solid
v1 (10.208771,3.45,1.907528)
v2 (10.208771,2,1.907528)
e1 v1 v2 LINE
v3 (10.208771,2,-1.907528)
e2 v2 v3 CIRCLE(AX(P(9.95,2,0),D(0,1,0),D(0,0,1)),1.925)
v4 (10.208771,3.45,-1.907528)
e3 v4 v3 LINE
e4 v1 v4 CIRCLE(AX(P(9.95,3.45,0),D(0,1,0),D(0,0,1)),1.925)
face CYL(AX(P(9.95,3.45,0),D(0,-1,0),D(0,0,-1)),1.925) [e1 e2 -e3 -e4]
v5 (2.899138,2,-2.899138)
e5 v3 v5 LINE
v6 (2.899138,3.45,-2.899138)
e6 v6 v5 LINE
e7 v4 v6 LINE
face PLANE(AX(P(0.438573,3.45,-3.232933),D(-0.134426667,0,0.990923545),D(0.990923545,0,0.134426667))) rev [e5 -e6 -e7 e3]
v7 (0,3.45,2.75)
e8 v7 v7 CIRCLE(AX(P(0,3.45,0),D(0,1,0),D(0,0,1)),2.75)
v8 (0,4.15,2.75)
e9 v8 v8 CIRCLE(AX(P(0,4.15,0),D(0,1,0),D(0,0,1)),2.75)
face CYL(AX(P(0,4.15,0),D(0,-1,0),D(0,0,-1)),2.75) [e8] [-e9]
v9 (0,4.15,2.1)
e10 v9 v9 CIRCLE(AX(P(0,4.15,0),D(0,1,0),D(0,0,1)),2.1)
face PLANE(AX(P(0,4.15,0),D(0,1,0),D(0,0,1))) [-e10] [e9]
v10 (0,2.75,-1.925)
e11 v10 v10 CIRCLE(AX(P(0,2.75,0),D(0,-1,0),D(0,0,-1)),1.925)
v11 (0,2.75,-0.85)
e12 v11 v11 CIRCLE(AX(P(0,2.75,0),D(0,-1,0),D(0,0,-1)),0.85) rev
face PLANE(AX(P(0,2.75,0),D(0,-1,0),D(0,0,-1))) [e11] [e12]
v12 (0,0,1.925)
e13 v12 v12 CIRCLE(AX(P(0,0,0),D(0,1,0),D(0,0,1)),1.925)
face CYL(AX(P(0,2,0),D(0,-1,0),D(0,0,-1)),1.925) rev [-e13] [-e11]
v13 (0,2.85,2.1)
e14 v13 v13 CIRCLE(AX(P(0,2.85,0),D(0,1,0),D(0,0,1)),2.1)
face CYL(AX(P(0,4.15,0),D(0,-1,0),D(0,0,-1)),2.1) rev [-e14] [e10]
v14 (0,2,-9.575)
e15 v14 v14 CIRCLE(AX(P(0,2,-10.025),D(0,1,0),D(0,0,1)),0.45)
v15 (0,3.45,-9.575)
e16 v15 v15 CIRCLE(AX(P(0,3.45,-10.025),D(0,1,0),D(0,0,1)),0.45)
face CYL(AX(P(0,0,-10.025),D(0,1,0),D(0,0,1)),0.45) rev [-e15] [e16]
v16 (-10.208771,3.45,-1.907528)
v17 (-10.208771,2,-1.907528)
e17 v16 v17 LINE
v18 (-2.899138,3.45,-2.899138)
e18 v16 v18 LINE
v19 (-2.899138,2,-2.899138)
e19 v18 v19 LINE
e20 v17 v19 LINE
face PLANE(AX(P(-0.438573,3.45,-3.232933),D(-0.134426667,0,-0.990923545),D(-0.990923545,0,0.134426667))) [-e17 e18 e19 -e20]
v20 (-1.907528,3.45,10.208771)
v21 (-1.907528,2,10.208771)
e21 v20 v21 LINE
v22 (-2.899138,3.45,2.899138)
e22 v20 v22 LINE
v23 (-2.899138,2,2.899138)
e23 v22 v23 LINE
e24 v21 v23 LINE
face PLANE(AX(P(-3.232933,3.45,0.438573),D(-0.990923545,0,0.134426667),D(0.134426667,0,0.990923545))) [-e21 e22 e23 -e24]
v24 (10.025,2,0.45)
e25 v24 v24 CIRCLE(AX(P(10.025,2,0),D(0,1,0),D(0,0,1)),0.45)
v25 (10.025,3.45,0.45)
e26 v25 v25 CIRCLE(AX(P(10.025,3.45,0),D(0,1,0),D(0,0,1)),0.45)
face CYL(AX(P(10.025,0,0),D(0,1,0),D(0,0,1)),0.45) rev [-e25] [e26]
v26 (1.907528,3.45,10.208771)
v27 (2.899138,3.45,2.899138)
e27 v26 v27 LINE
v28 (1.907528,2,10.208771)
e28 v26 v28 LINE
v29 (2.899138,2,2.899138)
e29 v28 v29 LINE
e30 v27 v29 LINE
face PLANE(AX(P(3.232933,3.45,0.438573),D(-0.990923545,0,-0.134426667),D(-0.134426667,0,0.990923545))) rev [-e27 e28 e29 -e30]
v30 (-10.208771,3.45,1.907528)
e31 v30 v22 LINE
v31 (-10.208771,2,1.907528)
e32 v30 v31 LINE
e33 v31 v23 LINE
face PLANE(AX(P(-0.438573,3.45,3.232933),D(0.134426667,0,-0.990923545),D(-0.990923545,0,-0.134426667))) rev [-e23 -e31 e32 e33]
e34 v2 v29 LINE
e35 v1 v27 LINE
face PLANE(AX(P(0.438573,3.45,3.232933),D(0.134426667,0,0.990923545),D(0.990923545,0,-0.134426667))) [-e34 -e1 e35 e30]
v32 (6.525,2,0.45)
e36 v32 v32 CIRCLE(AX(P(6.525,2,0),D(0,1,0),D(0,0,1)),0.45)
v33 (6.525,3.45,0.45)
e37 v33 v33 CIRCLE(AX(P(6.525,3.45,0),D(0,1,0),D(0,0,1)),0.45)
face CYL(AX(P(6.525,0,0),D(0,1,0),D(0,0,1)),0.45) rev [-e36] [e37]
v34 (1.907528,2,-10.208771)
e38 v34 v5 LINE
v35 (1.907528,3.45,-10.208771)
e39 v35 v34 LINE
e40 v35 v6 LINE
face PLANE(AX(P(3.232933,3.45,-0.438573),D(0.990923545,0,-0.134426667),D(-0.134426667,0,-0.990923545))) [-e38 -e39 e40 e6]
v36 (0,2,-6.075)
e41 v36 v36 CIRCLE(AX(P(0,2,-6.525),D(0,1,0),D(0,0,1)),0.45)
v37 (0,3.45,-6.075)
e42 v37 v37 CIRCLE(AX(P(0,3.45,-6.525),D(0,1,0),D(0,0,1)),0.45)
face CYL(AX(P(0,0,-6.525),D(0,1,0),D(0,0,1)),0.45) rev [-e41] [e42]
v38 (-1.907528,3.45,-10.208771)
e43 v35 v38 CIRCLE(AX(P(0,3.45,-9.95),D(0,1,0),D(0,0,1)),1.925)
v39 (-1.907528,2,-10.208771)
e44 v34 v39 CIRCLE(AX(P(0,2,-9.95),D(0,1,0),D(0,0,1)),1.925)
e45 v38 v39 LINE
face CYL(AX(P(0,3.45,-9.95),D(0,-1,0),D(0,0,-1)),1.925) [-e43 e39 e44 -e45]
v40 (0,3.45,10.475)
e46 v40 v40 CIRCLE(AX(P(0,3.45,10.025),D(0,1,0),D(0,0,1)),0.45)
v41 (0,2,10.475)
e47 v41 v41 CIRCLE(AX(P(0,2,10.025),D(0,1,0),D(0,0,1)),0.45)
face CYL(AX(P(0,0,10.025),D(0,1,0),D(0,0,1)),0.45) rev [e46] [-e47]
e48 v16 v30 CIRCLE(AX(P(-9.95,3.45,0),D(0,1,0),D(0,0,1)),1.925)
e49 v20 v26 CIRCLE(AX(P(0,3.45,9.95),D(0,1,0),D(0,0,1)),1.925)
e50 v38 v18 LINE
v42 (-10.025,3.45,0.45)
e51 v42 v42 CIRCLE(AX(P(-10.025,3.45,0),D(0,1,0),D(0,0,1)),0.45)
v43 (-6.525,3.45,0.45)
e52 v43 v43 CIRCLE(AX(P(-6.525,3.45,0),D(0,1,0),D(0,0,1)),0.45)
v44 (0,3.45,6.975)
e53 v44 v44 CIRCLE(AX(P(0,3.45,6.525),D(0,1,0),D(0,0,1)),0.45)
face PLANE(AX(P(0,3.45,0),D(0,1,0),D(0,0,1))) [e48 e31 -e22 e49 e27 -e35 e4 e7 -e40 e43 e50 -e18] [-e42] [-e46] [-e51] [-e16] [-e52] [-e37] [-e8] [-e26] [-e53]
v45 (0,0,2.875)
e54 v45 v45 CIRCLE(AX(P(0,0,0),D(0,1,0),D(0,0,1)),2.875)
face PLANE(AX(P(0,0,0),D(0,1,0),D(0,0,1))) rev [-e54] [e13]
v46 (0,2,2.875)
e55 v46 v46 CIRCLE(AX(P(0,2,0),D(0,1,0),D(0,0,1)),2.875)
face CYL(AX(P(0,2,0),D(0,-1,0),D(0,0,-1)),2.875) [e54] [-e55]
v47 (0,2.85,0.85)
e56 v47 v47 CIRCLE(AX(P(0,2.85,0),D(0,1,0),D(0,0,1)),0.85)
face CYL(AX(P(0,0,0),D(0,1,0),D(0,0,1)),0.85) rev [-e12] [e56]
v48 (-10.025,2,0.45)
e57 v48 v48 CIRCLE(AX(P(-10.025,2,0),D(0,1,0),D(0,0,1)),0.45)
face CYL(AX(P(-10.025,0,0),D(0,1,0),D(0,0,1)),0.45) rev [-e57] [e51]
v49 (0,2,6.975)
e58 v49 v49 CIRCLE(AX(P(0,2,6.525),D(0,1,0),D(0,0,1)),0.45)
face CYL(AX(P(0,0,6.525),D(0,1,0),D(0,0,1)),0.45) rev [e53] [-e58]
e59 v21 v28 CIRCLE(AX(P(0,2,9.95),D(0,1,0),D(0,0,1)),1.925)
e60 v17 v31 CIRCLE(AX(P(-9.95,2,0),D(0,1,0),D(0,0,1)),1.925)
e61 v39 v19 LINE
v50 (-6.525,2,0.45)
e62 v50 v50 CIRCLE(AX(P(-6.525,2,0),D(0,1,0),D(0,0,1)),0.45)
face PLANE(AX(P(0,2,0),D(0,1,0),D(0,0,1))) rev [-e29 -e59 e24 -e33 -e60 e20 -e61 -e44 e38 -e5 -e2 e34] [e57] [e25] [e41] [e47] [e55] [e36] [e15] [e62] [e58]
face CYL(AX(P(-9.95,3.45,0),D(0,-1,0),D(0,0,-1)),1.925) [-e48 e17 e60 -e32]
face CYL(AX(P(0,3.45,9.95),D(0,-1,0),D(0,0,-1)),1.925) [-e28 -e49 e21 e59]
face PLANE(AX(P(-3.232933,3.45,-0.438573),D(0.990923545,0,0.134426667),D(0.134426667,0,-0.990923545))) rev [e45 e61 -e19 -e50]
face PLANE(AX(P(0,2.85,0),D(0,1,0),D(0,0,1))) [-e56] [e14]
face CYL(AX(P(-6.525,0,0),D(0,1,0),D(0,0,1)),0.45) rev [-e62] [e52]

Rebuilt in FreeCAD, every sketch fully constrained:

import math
import FreeCAD as App
import Part
import Sketcher

doc = App.newDocument("Part")
params = doc.addObject("Spreadsheet::Sheet", "Params")
for row, (alias, value) in enumerate([
    ("sketch1_diameter", "5.75 mm"),
    ("sketch1_diameter2", "3.85 mm"),
    ("pad1_length", "2 mm"),
    ("pad2_length", "1.45 mm"),
    ("sketch3_diameter", "5.5 mm"),
    ("sketch3_diameter2", "4.2 mm"),
    ("pad3_length", "0.7 mm"),
    ("sketch4_diameter", "4.2 mm"),
    ("pocket1_length", "1.3 mm"),
    ("sketch5_diameter", "1.7 mm"),
    ("sketch6_diameter", "0.9 mm"),
    ("sketch7_diameter", "3.85 mm"),
    ("pocket4_length", "0.75 mm"),
], start=1):
    params.set(f"A{row}", alias)
    params.set(f"B{row}", "=" + value)
    params.setAlias(f"B{row}", alias)

body = doc.addObject("PartDesign::Body", "Body")

sketch1 = body.newObject("Sketcher::SketchObject", "Sketch")
sketch1.AttachmentSupport = (doc.getObject("XZ_Plane"), [""])
sketch1.MapMode = "FlatFace"
sketch1.addGeometry(Part.Circle(App.Vector(0, 0, 0), App.Vector(0, 0, 1), 2.9), False)
sketch1.addGeometry(Part.Circle(App.Vector(0, 0, 0), App.Vector(0, 0, 1), 1.9), False)
sketch1.addConstraint(Sketcher.Constraint("Coincident", 0, 3, -1, 1))
sketch1.addConstraint(Sketcher.Constraint("Coincident", 1, 3, -1, 1))
sketch1.addConstraint(Sketcher.Constraint("Diameter", 0, 5.75))
sketch1.addConstraint(Sketcher.Constraint("Diameter", 1, 3.85))
sketch1.setExpression("Constraints[2]", "Params.sketch1_diameter")
sketch1.setExpression("Constraints[3]", "Params.sketch1_diameter2")
pad1 = body.newObject("PartDesign::Pad", "Pad")
pad1.Profile = sketch1
pad1.setExpression("Length", "Params.pad1_length")
pad1.Reversed = True

sketch2 = body.newObject("Sketcher::SketchObject", "Sketch001")
sketch2.AttachmentSupport = (doc.getObject("XZ_Plane"), [""])
sketch2.MapMode = "FlatFace"
sketch2.AttachmentOffset = App.Placement(App.Vector(0, 0, -2), App.Rotation())
sketch2.addGeometry(Part.ArcOfCircle(Part.Circle(App.Vector(-9.9, 0, 0), App.Vector(0, 0, 1), 1.9), math.radians(98), math.radians(262)), False)
sketch2.addGeometry(Part.LineSegment(App.Vector(-10.2, 1.9, 0), App.Vector(-2.9, 2.9, 0)), False)
sketch2.addGeometry(Part.LineSegment(App.Vector(-2.9, 2.9, 0), App.Vector(-1.9, 10.2, 0)), False)
sketch2.addGeometry(Part.ArcOfCircle(Part.Circle(App.Vector(0, 9.9, 0), App.Vector(0, 0, 1), 1.9), math.radians(8), math.radians(172)), False)
sketch2.addGeometry(Part.LineSegment(App.Vector(1.9, 10.2, 0), App.Vector(2.9, 2.9, 0)), False)
sketch2.addGeometry(Part.LineSegment(App.Vector(2.9, 2.9, 0), App.Vector(10.2, 1.9, 0)), False)
sketch2.addGeometry(Part.ArcOfCircle(Part.Circle(App.Vector(9.9, 0, 0), App.Vector(0, 0, 1), 1.9), math.radians(-82), math.radians(82)), False)
sketch2.addGeometry(Part.LineSegment(App.Vector(10.2, -1.9, 0), App.Vector(2.9, -2.9, 0)), False)
sketch2.addGeometry(Part.LineSegment(App.Vector(2.9, -2.9, 0), App.Vector(1.9, -10.2, 0)), False)
sketch2.addGeometry(Part.ArcOfCircle(Part.Circle(App.Vector(0, -9.9, 0), App.Vector(0, 0, 1), 1.9), math.radians(-172), math.radians(-8)), False)
sketch2.addGeometry(Part.LineSegment(App.Vector(-1.9, -10.2, 0), App.Vector(-2.9, -2.9, 0)), False)
sketch2.addGeometry(Part.LineSegment(App.Vector(-2.9, -2.9, 0), App.Vector(-10.2, -1.9, 0)), False)
sketch2.addConstraint(Sketcher.Constraint("Tangent", 0, 1, 1, 1))
sketch2.addConstraint(Sketcher.Constraint("Coincident", 1, 2, 2, 1))
sketch2.addConstraint(Sketcher.Constraint("Tangent", 2, 2, 3, 2))
sketch2.addConstraint(Sketcher.Constraint("Tangent", 3, 1, 4, 1))
sketch2.addConstraint(Sketcher.Constraint("Coincident", 4, 2, 5, 1))
sketch2.addConstraint(Sketcher.Constraint("Tangent", 5, 2, 6, 2))
sketch2.addConstraint(Sketcher.Constraint("Tangent", 6, 1, 7, 1))
sketch2.addConstraint(Sketcher.Constraint("Coincident", 7, 2, 8, 1))
sketch2.addConstraint(Sketcher.Constraint("Tangent", 8, 2, 9, 2))
sketch2.addConstraint(Sketcher.Constraint("Tangent", 9, 1, 10, 1))
sketch2.addConstraint(Sketcher.Constraint("Coincident", 10, 2, 11, 1))
sketch2.addConstraint(Sketcher.Constraint("Tangent", 11, 2, 0, 2))
sketch2.addConstraint(Sketcher.Constraint("Equal", 0, 3))
sketch2.addConstraint(Sketcher.Constraint("Equal", 3, 6))
sketch2.addConstraint(Sketcher.Constraint("Equal", 6, 9))
sketch2.addConstraint(Sketcher.Constraint("Symmetric", 0, 3, 6, 3, -1, 1))
sketch2.addConstraint(Sketcher.Constraint("Symmetric", 3, 3, 9, 3, -1, 1))
sketch2.addConstraint(Sketcher.Constraint("Symmetric", 1, 2, 7, 2, -1, 1))
sketch2.addConstraint(Sketcher.Constraint("Symmetric", 4, 2, 10, 2, -1, 1))
sketch2.addConstraint(Sketcher.Constraint("Symmetric", 2, 2, 3, 1, -2))
sketch2.addConstraint(Sketcher.Constraint("Symmetric", 0, 1, 5, 2, -2))
sketch2.addConstraint(Sketcher.Constraint("Perpendicular", 1, 4))
sketch2.addConstraint(Sketcher.Constraint("Equal", 1, 2))
sketch2.addConstraint(Sketcher.Constraint("Radius", 0, 1.925))
sketch2.addConstraint(Sketcher.Constraint("DistanceX", 0, 3, 6, 3, 19.9))
sketch2.addConstraint(Sketcher.Constraint("DistanceX", 0, 1, 3, 1, 12.116299))
pad2 = body.newObject("PartDesign::Pad", "Pad001")
pad2.Profile = sketch2
pad2.setExpression("Length", "Params.pad2_length")
pad2.Reversed = True

sketch3 = body.newObject("Sketcher::SketchObject", "Sketch002")
sketch3.AttachmentSupport = (doc.getObject("XZ_Plane"), [""])
sketch3.MapMode = "FlatFace"
sketch3.AttachmentOffset = App.Placement(App.Vector(0, 0, -3.45), App.Rotation())
sketch3.addGeometry(Part.Circle(App.Vector(0, 0, 0), App.Vector(0, 0, 1), 2.8), False)
sketch3.addGeometry(Part.Circle(App.Vector(0, 0, 0), App.Vector(0, 0, 1), 2.1), False)
sketch3.addConstraint(Sketcher.Constraint("Coincident", 0, 3, -1, 1))
sketch3.addConstraint(Sketcher.Constraint("Coincident", 1, 3, -1, 1))
sketch3.addConstraint(Sketcher.Constraint("Diameter", 0, 5.5))
sketch3.addConstraint(Sketcher.Constraint("Diameter", 1, 4.2))
sketch3.setExpression("Constraints[2]", "Params.sketch3_diameter")
sketch3.setExpression("Constraints[3]", "Params.sketch3_diameter2")
pad3 = body.newObject("PartDesign::Pad", "Pad002")
pad3.Profile = sketch3
pad3.setExpression("Length", "Params.pad3_length")
pad3.Reversed = True

sketch4 = body.newObject("Sketcher::SketchObject", "Sketch003")
sketch4.AttachmentSupport = (doc.getObject("XZ_Plane"), [""])
sketch4.MapMode = "FlatFace"
sketch4.AttachmentOffset = App.Placement(App.Vector(0, 0, -2.85), App.Rotation())
sketch4.addGeometry(Part.Circle(App.Vector(0, 0, 0), App.Vector(0, 0, 1), 2.1), False)
sketch4.addConstraint(Sketcher.Constraint("Coincident", 0, 3, -1, 1))
sketch4.addConstraint(Sketcher.Constraint("Diameter", 0, 4.2))
sketch4.setExpression("Constraints[1]", "Params.sketch4_diameter")
pocket1 = body.newObject("PartDesign::Pocket", "Pocket")
pocket1.Profile = sketch4
pocket1.setExpression("Length", "Params.pocket1_length")

sketch5 = body.newObject("Sketcher::SketchObject", "Sketch004")
sketch5.AttachmentSupport = (doc.getObject("XZ_Plane"), [""])
sketch5.MapMode = "FlatFace"
sketch5.AttachmentOffset = App.Placement(App.Vector(0, 0, -2.85), App.Rotation())
sketch5.addGeometry(Part.Circle(App.Vector(0, 0, 0), App.Vector(0, 0, 1), 0.8), False)
sketch5.addConstraint(Sketcher.Constraint("Coincident", 0, 3, -1, 1))
sketch5.addConstraint(Sketcher.Constraint("Diameter", 0, 1.7))
sketch5.setExpression("Constraints[1]", "Params.sketch5_diameter")
pocket2 = body.newObject("PartDesign::Pocket", "Pocket001")
pocket2.Profile = sketch5
pocket2.Type = "ThroughAll"
pocket2.Reversed = True

sketch6 = body.newObject("Sketcher::SketchObject", "Sketch005")
sketch6.AttachmentSupport = (doc.getObject("XZ_Plane"), [""])
sketch6.MapMode = "FlatFace"
sketch6.AttachmentOffset = App.Placement(App.Vector(0, 0, -3.45), App.Rotation())
sketch6.addGeometry(Part.Circle(App.Vector(0, -10.03, 0), App.Vector(0, 0, 1), 0.45), False)
sketch6.addGeometry(Part.Circle(App.Vector(0, -6.53, 0), App.Vector(0, 0, 1), 0.45), False)
sketch6.addGeometry(Part.Circle(App.Vector(6.53, 0, 0), App.Vector(0, 0, 1), 0.45), False)
sketch6.addGeometry(Part.Circle(App.Vector(10.03, 0, 0), App.Vector(0, 0, 1), 0.45), False)
sketch6.addGeometry(Part.Circle(App.Vector(0, 6.53, 0), App.Vector(0, 0, 1), 0.45), False)
sketch6.addGeometry(Part.Circle(App.Vector(0, 10.03, 0), App.Vector(0, 0, 1), 0.45), False)
sketch6.addGeometry(Part.Circle(App.Vector(-6.53, 0, 0), App.Vector(0, 0, 1), 0.45), False)
sketch6.addGeometry(Part.Circle(App.Vector(-10.03, 0, 0), App.Vector(0, 0, 1), 0.45), False)
sketch6.addConstraint(Sketcher.Constraint("Equal", 0, 1))
sketch6.addConstraint(Sketcher.Constraint("Equal", 1, 2))
sketch6.addConstraint(Sketcher.Constraint("Equal", 2, 3))
sketch6.addConstraint(Sketcher.Constraint("Equal", 3, 4))
sketch6.addConstraint(Sketcher.Constraint("Equal", 4, 5))
sketch6.addConstraint(Sketcher.Constraint("Equal", 5, 6))
sketch6.addConstraint(Sketcher.Constraint("Equal", 6, 7))
sketch6.addConstraint(Sketcher.Constraint("Symmetric", 1, 3, 4, 3, -1, 1))
sketch6.addConstraint(Sketcher.Constraint("Symmetric", 0, 3, 5, 3, -1, 1))
sketch6.addConstraint(Sketcher.Constraint("Symmetric", 2, 3, 6, 3, -1, 1))
sketch6.addConstraint(Sketcher.Constraint("Symmetric", 3, 3, 7, 3, -1, 1))
sketch6.addConstraint(Sketcher.Constraint("PointOnObject", 0, 3, -2))
sketch6.addConstraint(Sketcher.Constraint("PointOnObject", 1, 3, -2))
sketch6.addConstraint(Sketcher.Constraint("PointOnObject", 2, 3, -1))
sketch6.addConstraint(Sketcher.Constraint("PointOnObject", 3, 3, -1))
sketch6.addConstraint(Sketcher.Constraint("Diameter", 0, 0.9))
sketch6.addConstraint(Sketcher.Constraint("DistanceY", 0, 3, 1, 3, 3.5))
sketch6.addConstraint(Sketcher.Constraint("DistanceX", 2, 3, 3, 3, 3.5))
sketch6.addConstraint(Sketcher.Constraint("DistanceY", 1, 3, 4, 3, 13.05))
sketch6.addConstraint(Sketcher.Constraint("DistanceX", 6, 3, 2, 3, 13.05))
sketch6.setExpression("Constraints[15]", "Params.sketch6_diameter")
pocket3 = body.newObject("PartDesign::Pocket", "Pocket002")
pocket3.Profile = sketch6
pocket3.Type = "ThroughAll"
pocket3.Reversed = True

sketch7 = body.newObject("Sketcher::SketchObject", "Sketch006")
sketch7.AttachmentSupport = (doc.getObject("XZ_Plane"), [""])
sketch7.MapMode = "FlatFace"
sketch7.AttachmentOffset = App.Placement(App.Vector(0, 0, -2), App.Rotation())
sketch7.addGeometry(Part.Circle(App.Vector(0, 0, 0), App.Vector(0, 0, 1), 1.9), False)
sketch7.addConstraint(Sketcher.Constraint("Coincident", 0, 3, -1, 1))
sketch7.addConstraint(Sketcher.Constraint("Diameter", 0, 3.85))
sketch7.setExpression("Constraints[1]", "Params.sketch7_diameter")
pocket4 = body.newObject("PartDesign::Pocket", "Pocket003")
pocket4.Profile = sketch7
pocket4.setExpression("Length", "Params.pocket4_length")

doc.recompute()
